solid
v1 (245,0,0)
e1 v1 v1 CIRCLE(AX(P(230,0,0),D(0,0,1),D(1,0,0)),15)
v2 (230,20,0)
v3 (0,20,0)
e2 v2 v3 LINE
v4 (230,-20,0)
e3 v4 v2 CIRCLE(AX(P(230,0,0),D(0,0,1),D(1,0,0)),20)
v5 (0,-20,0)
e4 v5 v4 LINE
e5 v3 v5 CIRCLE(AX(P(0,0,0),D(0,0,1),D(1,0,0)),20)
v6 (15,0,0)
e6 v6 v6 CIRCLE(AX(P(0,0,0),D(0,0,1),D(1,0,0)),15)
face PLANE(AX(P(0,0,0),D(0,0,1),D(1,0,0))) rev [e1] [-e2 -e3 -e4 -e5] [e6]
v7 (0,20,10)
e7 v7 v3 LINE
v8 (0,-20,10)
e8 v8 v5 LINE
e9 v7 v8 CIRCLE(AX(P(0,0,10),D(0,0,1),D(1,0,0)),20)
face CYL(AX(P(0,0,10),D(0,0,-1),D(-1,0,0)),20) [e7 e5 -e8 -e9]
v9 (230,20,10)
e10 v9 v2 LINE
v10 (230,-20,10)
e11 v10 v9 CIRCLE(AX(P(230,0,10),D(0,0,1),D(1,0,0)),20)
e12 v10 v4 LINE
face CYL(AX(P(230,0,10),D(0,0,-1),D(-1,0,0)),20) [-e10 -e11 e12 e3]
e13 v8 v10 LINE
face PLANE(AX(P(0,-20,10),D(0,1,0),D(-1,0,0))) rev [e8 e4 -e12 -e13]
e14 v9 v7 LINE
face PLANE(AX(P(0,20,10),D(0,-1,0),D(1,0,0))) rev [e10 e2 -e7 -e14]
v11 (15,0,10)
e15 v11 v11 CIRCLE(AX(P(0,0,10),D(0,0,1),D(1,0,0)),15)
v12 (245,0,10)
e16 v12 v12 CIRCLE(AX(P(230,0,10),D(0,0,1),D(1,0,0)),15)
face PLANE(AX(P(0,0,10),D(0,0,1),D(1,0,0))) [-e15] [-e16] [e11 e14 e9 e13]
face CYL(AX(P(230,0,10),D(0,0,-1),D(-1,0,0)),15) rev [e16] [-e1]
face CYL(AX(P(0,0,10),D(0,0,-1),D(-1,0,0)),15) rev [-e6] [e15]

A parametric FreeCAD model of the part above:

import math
import FreeCAD as App
import Part
import Sketcher
Q = App.Units.Quantity

doc = App.newDocument("Part")
body = doc.addObject("PartDesign::Body", "Body")

sketch1 = body.newObject("Sketcher::SketchObject", "Sketch")
sketch1.AttachmentSupport = (doc.getObject("XY_Plane"), [""])
sketch1.MapMode = "FlatFace"
sketch1.addGeometry([
    Part.LineSegment(App.Vector(230, 20, 0), App.Vector(0, 20, 0)),
    Part.ArcOfCircle(Part.Circle(App.Vector(0, 0, 0), App.Vector(0, 0, 1), 20), math.radians(90), math.radians(270)),
    Part.LineSegment(App.Vector(0, -20, 0), App.Vector(230, -20, 0)),
    Part.ArcOfCircle(Part.Circle(App.Vector(230, 0, 0), App.Vector(0, 0, 1), 20), math.radians(-90), math.radians(90)),
    Part.Circle(App.Vector(230, 0, 0), App.Vector(0, 0, 1), 15),
    Part.Circle(App.Vector(0, 0, 0), App.Vector(0, 0, 1), 15),
], False)
sketch1.addConstraint([
    Sketcher.Constraint("Tangent", 0, 2, 1, 1),
    Sketcher.Constraint("Tangent", 1, 2, 2, 1),
    Sketcher.Constraint("Tangent", 2, 2, 3, 1),
    Sketcher.Constraint("Tangent", 3, 2, 0, 1),
    Sketcher.Constraint("Horizontal", 0),
    Sketcher.Constraint("Horizontal", 2),
    Sketcher.Constraint("Coincident", 1, 3, -1, 1),
    Sketcher.Constraint("Coincident", 5, 3, -1, 1),
    Sketcher.Constraint("Coincident", 4, 3, 3, 3),
    Sketcher.Constraint("Equal", 4, 5),
    Sketcher.Constraint("Diameter", 4, Q("30 mm")),
    Sketcher.Constraint("Radius", 1, Q("20 mm")),
    Sketcher.Constraint("DistanceX", 0, 2, 0, 1, Q("230 mm")),
])
pad1 = body.newObject("PartDesign::Pad", "Pad")
pad1.Profile = sketch1
pad1.Length = 10

doc.recompute()
